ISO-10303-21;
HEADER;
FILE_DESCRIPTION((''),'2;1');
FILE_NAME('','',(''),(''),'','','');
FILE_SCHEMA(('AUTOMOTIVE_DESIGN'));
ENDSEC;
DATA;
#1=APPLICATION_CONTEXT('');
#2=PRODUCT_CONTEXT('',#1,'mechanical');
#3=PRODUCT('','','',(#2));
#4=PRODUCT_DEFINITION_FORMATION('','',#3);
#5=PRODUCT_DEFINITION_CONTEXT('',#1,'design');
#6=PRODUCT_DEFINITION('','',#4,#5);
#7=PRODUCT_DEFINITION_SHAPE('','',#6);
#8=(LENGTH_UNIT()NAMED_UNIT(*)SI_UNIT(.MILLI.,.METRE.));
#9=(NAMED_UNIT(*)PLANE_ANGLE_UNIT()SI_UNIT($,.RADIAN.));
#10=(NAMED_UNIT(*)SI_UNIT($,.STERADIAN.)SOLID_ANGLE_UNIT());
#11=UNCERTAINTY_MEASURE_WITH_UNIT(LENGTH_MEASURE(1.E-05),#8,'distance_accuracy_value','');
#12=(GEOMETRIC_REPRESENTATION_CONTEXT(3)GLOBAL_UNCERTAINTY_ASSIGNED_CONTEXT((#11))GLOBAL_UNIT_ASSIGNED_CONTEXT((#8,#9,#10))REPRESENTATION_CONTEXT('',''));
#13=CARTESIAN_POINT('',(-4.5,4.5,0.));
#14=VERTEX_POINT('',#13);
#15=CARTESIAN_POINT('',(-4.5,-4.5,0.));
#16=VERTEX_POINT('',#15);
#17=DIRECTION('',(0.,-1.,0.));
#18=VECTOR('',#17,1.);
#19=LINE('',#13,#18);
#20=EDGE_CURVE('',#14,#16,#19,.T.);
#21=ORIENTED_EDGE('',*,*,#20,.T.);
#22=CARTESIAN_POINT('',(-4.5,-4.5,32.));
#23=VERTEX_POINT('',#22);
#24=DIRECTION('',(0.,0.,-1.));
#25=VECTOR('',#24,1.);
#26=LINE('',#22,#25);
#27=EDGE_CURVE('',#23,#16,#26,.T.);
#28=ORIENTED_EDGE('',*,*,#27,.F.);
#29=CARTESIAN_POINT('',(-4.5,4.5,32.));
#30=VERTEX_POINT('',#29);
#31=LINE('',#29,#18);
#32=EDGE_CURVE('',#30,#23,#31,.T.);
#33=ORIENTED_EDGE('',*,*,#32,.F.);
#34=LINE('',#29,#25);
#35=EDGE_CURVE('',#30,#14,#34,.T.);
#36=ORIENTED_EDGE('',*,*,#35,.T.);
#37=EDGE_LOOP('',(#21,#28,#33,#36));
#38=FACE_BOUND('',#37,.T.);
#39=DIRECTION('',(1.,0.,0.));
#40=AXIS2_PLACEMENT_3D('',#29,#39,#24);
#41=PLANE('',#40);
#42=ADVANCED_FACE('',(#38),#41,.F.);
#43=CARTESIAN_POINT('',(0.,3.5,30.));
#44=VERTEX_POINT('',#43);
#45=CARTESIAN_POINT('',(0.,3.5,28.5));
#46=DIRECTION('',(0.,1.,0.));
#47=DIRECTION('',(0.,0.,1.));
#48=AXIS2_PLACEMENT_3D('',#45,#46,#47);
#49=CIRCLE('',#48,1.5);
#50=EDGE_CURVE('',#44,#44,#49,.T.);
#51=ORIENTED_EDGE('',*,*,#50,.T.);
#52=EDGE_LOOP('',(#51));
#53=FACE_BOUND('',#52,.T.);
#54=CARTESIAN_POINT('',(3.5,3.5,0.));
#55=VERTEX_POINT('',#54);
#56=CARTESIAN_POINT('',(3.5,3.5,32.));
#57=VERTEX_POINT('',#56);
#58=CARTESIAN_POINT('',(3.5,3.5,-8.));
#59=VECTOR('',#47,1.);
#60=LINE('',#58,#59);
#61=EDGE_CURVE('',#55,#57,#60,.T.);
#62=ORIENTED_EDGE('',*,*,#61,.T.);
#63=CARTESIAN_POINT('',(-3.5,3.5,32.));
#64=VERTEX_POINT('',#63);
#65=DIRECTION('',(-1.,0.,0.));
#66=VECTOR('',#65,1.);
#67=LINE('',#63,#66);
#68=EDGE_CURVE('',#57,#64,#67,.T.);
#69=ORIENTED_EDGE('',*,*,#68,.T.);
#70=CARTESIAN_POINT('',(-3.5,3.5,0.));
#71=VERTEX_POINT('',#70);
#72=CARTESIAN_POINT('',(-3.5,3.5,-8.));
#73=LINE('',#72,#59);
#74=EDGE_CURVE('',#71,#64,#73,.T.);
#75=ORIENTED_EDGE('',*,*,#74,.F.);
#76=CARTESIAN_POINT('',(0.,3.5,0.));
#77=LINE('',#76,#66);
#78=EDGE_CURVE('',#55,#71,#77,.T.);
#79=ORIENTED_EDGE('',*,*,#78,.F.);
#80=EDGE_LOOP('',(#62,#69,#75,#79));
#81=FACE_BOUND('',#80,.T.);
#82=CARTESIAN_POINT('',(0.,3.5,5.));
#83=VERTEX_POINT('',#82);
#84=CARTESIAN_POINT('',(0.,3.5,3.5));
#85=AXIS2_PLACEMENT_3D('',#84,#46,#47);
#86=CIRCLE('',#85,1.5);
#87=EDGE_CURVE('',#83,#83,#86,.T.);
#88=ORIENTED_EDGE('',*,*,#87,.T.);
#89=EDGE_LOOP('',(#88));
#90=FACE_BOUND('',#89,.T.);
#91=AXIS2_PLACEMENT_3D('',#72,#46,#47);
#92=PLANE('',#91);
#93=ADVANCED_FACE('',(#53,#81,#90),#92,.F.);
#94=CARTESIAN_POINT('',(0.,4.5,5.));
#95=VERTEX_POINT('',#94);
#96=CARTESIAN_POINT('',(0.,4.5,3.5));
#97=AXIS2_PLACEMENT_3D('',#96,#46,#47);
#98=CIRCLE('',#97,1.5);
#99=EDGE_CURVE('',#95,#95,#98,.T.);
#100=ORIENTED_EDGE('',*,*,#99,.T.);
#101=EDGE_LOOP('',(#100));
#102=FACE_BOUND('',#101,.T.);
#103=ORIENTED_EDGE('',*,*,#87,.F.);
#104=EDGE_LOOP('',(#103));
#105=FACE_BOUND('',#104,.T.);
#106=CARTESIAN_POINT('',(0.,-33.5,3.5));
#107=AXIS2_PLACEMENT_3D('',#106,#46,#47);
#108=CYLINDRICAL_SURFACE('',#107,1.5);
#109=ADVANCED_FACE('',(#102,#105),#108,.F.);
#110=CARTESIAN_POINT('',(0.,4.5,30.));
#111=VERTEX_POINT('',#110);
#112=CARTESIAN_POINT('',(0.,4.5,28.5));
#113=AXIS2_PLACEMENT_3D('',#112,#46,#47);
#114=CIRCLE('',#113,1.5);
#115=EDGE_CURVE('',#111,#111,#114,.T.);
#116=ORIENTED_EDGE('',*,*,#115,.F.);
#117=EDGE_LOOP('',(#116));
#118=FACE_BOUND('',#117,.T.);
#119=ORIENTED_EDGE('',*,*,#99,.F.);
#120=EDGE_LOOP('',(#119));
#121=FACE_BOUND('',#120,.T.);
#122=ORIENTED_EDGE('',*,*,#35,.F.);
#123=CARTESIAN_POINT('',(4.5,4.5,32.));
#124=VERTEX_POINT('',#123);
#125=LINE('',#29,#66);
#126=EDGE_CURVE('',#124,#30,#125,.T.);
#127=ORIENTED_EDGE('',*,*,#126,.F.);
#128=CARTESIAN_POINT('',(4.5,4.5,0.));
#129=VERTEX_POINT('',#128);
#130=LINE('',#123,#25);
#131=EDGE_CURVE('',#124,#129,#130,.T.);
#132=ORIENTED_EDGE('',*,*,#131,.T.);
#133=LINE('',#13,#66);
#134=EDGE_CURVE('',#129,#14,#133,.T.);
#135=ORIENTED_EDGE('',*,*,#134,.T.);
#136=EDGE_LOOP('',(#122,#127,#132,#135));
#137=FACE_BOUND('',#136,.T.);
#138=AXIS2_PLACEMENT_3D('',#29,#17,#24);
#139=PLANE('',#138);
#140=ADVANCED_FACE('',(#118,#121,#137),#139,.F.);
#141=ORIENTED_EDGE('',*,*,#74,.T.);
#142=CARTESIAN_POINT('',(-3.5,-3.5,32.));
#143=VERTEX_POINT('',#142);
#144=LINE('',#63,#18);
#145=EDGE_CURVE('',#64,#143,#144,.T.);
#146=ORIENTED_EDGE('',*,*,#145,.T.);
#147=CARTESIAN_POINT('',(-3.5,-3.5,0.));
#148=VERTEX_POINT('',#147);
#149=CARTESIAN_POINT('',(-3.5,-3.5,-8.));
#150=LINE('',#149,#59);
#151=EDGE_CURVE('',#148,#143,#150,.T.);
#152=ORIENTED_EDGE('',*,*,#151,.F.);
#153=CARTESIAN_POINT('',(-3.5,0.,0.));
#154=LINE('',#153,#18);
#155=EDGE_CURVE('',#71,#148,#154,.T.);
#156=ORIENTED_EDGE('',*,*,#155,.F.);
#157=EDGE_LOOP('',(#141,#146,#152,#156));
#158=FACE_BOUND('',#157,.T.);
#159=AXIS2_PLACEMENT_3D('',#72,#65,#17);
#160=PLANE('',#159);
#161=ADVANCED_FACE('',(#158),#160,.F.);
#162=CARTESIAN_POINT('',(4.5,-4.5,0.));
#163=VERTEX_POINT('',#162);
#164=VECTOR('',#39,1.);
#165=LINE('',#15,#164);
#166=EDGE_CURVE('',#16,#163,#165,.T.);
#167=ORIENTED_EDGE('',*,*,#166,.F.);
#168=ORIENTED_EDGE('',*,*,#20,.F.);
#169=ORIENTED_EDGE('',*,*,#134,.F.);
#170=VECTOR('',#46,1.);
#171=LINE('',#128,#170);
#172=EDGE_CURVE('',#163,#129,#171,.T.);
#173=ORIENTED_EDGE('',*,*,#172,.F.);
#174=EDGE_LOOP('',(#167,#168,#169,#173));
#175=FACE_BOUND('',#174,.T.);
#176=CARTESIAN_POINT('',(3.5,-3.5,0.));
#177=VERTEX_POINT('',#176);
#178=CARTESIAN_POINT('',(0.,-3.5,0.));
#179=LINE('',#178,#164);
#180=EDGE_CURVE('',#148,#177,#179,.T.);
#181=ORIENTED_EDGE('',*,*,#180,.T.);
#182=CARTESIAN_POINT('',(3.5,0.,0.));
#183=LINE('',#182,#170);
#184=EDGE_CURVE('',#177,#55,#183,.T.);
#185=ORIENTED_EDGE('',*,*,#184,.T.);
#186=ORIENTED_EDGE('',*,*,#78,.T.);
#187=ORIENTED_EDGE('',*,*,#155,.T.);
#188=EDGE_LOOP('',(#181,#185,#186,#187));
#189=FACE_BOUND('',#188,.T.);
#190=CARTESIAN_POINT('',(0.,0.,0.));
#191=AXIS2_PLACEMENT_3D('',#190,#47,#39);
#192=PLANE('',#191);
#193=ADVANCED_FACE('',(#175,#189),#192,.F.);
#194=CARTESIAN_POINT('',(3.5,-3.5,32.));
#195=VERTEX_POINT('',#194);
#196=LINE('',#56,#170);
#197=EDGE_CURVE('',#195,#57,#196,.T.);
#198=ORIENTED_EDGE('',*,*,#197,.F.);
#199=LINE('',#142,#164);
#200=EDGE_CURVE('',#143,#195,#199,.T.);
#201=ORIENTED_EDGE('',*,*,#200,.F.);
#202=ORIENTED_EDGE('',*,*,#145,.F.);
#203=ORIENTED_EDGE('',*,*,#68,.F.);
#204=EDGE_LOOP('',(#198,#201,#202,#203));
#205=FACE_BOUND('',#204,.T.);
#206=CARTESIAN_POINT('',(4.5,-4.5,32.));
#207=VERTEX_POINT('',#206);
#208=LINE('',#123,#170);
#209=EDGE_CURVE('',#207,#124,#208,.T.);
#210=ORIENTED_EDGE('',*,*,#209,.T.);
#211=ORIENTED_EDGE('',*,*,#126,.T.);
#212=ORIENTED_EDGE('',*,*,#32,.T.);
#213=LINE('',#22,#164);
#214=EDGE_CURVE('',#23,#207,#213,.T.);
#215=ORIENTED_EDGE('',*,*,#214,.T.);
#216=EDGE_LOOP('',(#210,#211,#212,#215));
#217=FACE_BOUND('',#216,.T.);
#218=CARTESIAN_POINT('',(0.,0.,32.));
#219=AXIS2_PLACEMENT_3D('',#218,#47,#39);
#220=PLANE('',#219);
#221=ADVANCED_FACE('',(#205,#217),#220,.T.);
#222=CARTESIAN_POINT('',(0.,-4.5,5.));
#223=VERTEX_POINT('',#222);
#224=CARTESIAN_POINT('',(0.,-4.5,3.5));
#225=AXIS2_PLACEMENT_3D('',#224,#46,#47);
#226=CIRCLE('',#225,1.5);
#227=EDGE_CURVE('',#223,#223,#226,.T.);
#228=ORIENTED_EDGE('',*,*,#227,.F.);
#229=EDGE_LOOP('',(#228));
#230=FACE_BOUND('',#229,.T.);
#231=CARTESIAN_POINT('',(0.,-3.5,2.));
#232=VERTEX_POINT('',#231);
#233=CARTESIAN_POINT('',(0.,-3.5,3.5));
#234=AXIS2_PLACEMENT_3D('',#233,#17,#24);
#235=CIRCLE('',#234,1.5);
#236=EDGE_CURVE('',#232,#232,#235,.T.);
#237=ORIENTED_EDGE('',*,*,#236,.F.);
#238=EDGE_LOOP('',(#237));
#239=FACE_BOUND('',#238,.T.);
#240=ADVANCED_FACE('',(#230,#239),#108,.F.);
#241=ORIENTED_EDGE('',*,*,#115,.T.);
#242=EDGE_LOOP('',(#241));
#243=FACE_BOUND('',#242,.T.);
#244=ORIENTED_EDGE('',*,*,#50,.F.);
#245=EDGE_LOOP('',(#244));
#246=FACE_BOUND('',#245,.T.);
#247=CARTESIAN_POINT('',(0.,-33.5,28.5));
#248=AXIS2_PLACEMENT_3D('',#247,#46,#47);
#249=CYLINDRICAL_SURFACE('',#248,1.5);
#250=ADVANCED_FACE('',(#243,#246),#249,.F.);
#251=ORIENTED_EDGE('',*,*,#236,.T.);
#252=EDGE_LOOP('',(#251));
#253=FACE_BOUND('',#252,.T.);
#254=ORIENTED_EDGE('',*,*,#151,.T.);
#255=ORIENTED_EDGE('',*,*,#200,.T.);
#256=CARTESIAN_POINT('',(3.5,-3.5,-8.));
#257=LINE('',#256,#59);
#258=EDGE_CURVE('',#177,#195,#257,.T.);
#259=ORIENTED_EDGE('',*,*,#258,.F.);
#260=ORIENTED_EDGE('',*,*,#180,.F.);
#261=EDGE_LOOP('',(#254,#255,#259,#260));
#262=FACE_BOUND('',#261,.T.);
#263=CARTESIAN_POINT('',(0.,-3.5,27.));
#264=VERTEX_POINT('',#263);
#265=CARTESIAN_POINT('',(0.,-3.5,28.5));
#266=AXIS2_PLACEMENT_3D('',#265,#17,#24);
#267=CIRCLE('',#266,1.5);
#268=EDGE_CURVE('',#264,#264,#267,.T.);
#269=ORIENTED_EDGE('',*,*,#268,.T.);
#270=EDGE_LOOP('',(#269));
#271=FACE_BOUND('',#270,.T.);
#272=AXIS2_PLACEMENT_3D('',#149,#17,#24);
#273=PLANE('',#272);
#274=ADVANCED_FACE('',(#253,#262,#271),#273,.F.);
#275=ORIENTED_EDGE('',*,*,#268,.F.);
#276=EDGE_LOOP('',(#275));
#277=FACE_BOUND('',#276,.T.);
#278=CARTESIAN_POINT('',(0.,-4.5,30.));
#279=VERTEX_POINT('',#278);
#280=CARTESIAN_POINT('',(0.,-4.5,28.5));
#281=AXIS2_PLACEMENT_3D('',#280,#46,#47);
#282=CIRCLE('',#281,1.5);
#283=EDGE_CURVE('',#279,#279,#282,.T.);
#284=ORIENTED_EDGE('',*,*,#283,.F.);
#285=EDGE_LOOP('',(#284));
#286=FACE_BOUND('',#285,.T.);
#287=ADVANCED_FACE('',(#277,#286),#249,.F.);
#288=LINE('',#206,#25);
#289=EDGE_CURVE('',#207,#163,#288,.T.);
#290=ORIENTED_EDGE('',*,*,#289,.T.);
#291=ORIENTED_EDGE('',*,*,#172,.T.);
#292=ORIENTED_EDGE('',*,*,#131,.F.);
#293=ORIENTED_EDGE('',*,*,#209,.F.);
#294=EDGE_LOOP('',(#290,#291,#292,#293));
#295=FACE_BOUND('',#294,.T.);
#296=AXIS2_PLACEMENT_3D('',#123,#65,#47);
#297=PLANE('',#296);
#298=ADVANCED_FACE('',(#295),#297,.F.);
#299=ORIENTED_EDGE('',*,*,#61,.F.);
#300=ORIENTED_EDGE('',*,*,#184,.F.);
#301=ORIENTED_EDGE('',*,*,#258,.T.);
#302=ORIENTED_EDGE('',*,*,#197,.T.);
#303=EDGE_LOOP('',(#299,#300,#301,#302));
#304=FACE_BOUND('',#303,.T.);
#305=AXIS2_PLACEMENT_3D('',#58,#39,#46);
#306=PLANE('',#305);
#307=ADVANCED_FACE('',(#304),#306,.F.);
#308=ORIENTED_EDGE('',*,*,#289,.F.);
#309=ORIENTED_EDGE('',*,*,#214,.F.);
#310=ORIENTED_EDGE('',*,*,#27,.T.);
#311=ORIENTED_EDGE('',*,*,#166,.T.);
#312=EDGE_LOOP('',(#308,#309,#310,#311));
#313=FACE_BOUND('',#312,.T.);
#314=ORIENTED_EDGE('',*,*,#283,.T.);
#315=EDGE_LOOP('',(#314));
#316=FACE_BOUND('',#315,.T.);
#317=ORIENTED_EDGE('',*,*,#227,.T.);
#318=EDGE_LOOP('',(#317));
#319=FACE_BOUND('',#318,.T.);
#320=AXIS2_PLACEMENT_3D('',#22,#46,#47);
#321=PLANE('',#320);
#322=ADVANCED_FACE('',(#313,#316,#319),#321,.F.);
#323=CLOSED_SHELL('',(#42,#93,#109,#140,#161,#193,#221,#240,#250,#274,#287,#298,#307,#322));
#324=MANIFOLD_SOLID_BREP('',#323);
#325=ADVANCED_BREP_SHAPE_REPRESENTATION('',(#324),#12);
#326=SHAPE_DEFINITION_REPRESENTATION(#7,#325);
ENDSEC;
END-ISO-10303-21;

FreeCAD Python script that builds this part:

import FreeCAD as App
import Part
import Sketcher

V = App.Vector
Q = App.Units.Quantity

doc = App.newDocument("Part")
params = doc.addObject("Spreadsheet::Sheet", "Params")
for row, (alias, value) in enumerate([
    ("sketch1_width", "9 mm"),
    ("pad1_length", "32 mm"),
    ("sketch2_width", "7 mm"),
    ("pocket1_length", "40 mm"),
    ("sketch3_diameter", "3 mm"),
    ("pocket2_length", "38 mm"),
], start=1):
    params.set(f"A{row}", alias)
    params.set(f"B{row}", "=" + value)
    params.setAlias(f"B{row}", alias)

body = doc.addObject("PartDesign::Body", "Body")

# Sketch on XY plane
sketch1 = body.newObject("Sketcher::SketchObject", "Sketch")
sketch1.AttachmentSupport = (doc.getObject("XY_Plane"), [""])
sketch1.MapMode = "FlatFace"
sketch1.addGeometry([
    Part.LineSegment(V(-4.5, 4.5, 0), V(-4.5, -4.5, 0)),
    Part.LineSegment(V(-4.5, -4.5, 0), V(4.5, -4.5, 0)),
    Part.LineSegment(V(4.5, -4.5, 0), V(4.5, 4.5, 0)),
    Part.LineSegment(V(4.5, 4.5, 0), V(-4.5, 4.5, 0)),
], False)
sketch1.addConstraint([
    Sketcher.Constraint("Coincident", 0, 2, 1, 1),
    Sketcher.Constraint("Coincident", 1, 2, 2, 1),
    Sketcher.Constraint("Coincident", 2, 2, 3, 1),
    Sketcher.Constraint("Coincident", 3, 2, 0, 1),
    Sketcher.Constraint("Vertical", 0),
    Sketcher.Constraint("Horizontal", 1),
    Sketcher.Constraint("Vertical", 2),
    Sketcher.Constraint("Horizontal", 3),
    Sketcher.Constraint("Symmetric", 0, 2, 2, 2, -1, 1),
    Sketcher.Constraint("Equal", 3, 0),
    Sketcher.Constraint("DistanceX", 1, 1, 1, 2, Q("9 mm")),
])
sketch1.setExpression("Constraints[10]", "Params.sketch1_width")
pad1 = body.newObject("PartDesign::Pad", "Pad")
pad1.Profile = sketch1
pad1.setExpression("Length", "Params.pad1_length")

# Sketch on XY plane
sketch2 = body.newObject("Sketcher::SketchObject", "Sketch001")
sketch2.AttachmentSupport = (doc.getObject("XY_Plane"), [""])
sketch2.MapMode = "FlatFace"
sketch2.AttachmentOffset = App.Placement(V(0, 0, 32), App.Rotation())
sketch2.addGeometry([
    Part.LineSegment(V(-3.5, 3.5, 0), V(-3.5, -3.5, 0)),
    Part.LineSegment(V(-3.5, -3.5, 0), V(3.5, -3.5, 0)),
    Part.LineSegment(V(3.5, -3.5, 0), V(3.5, 3.5, 0)),
    Part.LineSegment(V(3.5, 3.5, 0), V(-3.5, 3.5, 0)),
], False)
sketch2.addConstraint([
    Sketcher.Constraint("Coincident", 0, 2, 1, 1),
    Sketcher.Constraint("Coincident", 1, 2, 2, 1),
    Sketcher.Constraint("Coincident", 2, 2, 3, 1),
    Sketcher.Constraint("Coincident", 3, 2, 0, 1),
    Sketcher.Constraint("Vertical", 0),
    Sketcher.Constraint("Horizontal", 1),
    Sketcher.Constraint("Vertical", 2),
    Sketcher.Constraint("Horizontal", 3),
    Sketcher.Constraint("Symmetric", 0, 2, 2, 2, -1, 1),
    Sketcher.Constraint("Equal", 3, 0),
    Sketcher.Constraint("DistanceX", 1, 1, 1, 2, Q("7 mm")),
])
sketch2.setExpression("Constraints[10]", "Params.sketch2_width")
pocket1 = body.newObject("PartDesign::Pocket", "Pocket")
pocket1.Profile = sketch2
pocket1.setExpression("Length", "Params.pocket1_length")

# Sketch on XZ plane
sketch3 = body.newObject("Sketcher::SketchObject", "Sketch002")
sketch3.AttachmentSupport = (doc.getObject("XZ_Plane"), [""])
sketch3.MapMode = "FlatFace"
sketch3.AttachmentOffset = App.Placement(V(0, 0, -4.5), App.Rotation())
sketch3.addGeometry([
    Part.Circle(V(0, 3.5, 0), V(0, 0, 1), 1.5),
    Part.Circle(V(0, 28.5, 0), V(0, 0, 1), 1.5),
], False)
sketch3.addConstraint([
    Sketcher.Constraint("Equal", 0, 1),
    Sketcher.Constraint("PointOnObject", 0, 3, -2),
    Sketcher.Constraint("PointOnObject", 1, 3, -2),
    Sketcher.Constraint("Diameter", 0, Q("3 mm")),
    Sketcher.Constraint("DistanceY", 0, 3, 1, 3, Q("25 mm")),
    Sketcher.Constraint("DistanceY", -1, 1, 0, 3, Q("3.5 mm")),
])
sketch3.setExpression("Constraints[3]", "Params.sketch3_diameter")
pocket2 = body.newObject("PartDesign::Pocket", "Pocket001")
pocket2.Profile = sketch3
pocket2.setExpression("Length", "Params.pocket2_length")
pocket2.Reversed = True

doc.recompute()
